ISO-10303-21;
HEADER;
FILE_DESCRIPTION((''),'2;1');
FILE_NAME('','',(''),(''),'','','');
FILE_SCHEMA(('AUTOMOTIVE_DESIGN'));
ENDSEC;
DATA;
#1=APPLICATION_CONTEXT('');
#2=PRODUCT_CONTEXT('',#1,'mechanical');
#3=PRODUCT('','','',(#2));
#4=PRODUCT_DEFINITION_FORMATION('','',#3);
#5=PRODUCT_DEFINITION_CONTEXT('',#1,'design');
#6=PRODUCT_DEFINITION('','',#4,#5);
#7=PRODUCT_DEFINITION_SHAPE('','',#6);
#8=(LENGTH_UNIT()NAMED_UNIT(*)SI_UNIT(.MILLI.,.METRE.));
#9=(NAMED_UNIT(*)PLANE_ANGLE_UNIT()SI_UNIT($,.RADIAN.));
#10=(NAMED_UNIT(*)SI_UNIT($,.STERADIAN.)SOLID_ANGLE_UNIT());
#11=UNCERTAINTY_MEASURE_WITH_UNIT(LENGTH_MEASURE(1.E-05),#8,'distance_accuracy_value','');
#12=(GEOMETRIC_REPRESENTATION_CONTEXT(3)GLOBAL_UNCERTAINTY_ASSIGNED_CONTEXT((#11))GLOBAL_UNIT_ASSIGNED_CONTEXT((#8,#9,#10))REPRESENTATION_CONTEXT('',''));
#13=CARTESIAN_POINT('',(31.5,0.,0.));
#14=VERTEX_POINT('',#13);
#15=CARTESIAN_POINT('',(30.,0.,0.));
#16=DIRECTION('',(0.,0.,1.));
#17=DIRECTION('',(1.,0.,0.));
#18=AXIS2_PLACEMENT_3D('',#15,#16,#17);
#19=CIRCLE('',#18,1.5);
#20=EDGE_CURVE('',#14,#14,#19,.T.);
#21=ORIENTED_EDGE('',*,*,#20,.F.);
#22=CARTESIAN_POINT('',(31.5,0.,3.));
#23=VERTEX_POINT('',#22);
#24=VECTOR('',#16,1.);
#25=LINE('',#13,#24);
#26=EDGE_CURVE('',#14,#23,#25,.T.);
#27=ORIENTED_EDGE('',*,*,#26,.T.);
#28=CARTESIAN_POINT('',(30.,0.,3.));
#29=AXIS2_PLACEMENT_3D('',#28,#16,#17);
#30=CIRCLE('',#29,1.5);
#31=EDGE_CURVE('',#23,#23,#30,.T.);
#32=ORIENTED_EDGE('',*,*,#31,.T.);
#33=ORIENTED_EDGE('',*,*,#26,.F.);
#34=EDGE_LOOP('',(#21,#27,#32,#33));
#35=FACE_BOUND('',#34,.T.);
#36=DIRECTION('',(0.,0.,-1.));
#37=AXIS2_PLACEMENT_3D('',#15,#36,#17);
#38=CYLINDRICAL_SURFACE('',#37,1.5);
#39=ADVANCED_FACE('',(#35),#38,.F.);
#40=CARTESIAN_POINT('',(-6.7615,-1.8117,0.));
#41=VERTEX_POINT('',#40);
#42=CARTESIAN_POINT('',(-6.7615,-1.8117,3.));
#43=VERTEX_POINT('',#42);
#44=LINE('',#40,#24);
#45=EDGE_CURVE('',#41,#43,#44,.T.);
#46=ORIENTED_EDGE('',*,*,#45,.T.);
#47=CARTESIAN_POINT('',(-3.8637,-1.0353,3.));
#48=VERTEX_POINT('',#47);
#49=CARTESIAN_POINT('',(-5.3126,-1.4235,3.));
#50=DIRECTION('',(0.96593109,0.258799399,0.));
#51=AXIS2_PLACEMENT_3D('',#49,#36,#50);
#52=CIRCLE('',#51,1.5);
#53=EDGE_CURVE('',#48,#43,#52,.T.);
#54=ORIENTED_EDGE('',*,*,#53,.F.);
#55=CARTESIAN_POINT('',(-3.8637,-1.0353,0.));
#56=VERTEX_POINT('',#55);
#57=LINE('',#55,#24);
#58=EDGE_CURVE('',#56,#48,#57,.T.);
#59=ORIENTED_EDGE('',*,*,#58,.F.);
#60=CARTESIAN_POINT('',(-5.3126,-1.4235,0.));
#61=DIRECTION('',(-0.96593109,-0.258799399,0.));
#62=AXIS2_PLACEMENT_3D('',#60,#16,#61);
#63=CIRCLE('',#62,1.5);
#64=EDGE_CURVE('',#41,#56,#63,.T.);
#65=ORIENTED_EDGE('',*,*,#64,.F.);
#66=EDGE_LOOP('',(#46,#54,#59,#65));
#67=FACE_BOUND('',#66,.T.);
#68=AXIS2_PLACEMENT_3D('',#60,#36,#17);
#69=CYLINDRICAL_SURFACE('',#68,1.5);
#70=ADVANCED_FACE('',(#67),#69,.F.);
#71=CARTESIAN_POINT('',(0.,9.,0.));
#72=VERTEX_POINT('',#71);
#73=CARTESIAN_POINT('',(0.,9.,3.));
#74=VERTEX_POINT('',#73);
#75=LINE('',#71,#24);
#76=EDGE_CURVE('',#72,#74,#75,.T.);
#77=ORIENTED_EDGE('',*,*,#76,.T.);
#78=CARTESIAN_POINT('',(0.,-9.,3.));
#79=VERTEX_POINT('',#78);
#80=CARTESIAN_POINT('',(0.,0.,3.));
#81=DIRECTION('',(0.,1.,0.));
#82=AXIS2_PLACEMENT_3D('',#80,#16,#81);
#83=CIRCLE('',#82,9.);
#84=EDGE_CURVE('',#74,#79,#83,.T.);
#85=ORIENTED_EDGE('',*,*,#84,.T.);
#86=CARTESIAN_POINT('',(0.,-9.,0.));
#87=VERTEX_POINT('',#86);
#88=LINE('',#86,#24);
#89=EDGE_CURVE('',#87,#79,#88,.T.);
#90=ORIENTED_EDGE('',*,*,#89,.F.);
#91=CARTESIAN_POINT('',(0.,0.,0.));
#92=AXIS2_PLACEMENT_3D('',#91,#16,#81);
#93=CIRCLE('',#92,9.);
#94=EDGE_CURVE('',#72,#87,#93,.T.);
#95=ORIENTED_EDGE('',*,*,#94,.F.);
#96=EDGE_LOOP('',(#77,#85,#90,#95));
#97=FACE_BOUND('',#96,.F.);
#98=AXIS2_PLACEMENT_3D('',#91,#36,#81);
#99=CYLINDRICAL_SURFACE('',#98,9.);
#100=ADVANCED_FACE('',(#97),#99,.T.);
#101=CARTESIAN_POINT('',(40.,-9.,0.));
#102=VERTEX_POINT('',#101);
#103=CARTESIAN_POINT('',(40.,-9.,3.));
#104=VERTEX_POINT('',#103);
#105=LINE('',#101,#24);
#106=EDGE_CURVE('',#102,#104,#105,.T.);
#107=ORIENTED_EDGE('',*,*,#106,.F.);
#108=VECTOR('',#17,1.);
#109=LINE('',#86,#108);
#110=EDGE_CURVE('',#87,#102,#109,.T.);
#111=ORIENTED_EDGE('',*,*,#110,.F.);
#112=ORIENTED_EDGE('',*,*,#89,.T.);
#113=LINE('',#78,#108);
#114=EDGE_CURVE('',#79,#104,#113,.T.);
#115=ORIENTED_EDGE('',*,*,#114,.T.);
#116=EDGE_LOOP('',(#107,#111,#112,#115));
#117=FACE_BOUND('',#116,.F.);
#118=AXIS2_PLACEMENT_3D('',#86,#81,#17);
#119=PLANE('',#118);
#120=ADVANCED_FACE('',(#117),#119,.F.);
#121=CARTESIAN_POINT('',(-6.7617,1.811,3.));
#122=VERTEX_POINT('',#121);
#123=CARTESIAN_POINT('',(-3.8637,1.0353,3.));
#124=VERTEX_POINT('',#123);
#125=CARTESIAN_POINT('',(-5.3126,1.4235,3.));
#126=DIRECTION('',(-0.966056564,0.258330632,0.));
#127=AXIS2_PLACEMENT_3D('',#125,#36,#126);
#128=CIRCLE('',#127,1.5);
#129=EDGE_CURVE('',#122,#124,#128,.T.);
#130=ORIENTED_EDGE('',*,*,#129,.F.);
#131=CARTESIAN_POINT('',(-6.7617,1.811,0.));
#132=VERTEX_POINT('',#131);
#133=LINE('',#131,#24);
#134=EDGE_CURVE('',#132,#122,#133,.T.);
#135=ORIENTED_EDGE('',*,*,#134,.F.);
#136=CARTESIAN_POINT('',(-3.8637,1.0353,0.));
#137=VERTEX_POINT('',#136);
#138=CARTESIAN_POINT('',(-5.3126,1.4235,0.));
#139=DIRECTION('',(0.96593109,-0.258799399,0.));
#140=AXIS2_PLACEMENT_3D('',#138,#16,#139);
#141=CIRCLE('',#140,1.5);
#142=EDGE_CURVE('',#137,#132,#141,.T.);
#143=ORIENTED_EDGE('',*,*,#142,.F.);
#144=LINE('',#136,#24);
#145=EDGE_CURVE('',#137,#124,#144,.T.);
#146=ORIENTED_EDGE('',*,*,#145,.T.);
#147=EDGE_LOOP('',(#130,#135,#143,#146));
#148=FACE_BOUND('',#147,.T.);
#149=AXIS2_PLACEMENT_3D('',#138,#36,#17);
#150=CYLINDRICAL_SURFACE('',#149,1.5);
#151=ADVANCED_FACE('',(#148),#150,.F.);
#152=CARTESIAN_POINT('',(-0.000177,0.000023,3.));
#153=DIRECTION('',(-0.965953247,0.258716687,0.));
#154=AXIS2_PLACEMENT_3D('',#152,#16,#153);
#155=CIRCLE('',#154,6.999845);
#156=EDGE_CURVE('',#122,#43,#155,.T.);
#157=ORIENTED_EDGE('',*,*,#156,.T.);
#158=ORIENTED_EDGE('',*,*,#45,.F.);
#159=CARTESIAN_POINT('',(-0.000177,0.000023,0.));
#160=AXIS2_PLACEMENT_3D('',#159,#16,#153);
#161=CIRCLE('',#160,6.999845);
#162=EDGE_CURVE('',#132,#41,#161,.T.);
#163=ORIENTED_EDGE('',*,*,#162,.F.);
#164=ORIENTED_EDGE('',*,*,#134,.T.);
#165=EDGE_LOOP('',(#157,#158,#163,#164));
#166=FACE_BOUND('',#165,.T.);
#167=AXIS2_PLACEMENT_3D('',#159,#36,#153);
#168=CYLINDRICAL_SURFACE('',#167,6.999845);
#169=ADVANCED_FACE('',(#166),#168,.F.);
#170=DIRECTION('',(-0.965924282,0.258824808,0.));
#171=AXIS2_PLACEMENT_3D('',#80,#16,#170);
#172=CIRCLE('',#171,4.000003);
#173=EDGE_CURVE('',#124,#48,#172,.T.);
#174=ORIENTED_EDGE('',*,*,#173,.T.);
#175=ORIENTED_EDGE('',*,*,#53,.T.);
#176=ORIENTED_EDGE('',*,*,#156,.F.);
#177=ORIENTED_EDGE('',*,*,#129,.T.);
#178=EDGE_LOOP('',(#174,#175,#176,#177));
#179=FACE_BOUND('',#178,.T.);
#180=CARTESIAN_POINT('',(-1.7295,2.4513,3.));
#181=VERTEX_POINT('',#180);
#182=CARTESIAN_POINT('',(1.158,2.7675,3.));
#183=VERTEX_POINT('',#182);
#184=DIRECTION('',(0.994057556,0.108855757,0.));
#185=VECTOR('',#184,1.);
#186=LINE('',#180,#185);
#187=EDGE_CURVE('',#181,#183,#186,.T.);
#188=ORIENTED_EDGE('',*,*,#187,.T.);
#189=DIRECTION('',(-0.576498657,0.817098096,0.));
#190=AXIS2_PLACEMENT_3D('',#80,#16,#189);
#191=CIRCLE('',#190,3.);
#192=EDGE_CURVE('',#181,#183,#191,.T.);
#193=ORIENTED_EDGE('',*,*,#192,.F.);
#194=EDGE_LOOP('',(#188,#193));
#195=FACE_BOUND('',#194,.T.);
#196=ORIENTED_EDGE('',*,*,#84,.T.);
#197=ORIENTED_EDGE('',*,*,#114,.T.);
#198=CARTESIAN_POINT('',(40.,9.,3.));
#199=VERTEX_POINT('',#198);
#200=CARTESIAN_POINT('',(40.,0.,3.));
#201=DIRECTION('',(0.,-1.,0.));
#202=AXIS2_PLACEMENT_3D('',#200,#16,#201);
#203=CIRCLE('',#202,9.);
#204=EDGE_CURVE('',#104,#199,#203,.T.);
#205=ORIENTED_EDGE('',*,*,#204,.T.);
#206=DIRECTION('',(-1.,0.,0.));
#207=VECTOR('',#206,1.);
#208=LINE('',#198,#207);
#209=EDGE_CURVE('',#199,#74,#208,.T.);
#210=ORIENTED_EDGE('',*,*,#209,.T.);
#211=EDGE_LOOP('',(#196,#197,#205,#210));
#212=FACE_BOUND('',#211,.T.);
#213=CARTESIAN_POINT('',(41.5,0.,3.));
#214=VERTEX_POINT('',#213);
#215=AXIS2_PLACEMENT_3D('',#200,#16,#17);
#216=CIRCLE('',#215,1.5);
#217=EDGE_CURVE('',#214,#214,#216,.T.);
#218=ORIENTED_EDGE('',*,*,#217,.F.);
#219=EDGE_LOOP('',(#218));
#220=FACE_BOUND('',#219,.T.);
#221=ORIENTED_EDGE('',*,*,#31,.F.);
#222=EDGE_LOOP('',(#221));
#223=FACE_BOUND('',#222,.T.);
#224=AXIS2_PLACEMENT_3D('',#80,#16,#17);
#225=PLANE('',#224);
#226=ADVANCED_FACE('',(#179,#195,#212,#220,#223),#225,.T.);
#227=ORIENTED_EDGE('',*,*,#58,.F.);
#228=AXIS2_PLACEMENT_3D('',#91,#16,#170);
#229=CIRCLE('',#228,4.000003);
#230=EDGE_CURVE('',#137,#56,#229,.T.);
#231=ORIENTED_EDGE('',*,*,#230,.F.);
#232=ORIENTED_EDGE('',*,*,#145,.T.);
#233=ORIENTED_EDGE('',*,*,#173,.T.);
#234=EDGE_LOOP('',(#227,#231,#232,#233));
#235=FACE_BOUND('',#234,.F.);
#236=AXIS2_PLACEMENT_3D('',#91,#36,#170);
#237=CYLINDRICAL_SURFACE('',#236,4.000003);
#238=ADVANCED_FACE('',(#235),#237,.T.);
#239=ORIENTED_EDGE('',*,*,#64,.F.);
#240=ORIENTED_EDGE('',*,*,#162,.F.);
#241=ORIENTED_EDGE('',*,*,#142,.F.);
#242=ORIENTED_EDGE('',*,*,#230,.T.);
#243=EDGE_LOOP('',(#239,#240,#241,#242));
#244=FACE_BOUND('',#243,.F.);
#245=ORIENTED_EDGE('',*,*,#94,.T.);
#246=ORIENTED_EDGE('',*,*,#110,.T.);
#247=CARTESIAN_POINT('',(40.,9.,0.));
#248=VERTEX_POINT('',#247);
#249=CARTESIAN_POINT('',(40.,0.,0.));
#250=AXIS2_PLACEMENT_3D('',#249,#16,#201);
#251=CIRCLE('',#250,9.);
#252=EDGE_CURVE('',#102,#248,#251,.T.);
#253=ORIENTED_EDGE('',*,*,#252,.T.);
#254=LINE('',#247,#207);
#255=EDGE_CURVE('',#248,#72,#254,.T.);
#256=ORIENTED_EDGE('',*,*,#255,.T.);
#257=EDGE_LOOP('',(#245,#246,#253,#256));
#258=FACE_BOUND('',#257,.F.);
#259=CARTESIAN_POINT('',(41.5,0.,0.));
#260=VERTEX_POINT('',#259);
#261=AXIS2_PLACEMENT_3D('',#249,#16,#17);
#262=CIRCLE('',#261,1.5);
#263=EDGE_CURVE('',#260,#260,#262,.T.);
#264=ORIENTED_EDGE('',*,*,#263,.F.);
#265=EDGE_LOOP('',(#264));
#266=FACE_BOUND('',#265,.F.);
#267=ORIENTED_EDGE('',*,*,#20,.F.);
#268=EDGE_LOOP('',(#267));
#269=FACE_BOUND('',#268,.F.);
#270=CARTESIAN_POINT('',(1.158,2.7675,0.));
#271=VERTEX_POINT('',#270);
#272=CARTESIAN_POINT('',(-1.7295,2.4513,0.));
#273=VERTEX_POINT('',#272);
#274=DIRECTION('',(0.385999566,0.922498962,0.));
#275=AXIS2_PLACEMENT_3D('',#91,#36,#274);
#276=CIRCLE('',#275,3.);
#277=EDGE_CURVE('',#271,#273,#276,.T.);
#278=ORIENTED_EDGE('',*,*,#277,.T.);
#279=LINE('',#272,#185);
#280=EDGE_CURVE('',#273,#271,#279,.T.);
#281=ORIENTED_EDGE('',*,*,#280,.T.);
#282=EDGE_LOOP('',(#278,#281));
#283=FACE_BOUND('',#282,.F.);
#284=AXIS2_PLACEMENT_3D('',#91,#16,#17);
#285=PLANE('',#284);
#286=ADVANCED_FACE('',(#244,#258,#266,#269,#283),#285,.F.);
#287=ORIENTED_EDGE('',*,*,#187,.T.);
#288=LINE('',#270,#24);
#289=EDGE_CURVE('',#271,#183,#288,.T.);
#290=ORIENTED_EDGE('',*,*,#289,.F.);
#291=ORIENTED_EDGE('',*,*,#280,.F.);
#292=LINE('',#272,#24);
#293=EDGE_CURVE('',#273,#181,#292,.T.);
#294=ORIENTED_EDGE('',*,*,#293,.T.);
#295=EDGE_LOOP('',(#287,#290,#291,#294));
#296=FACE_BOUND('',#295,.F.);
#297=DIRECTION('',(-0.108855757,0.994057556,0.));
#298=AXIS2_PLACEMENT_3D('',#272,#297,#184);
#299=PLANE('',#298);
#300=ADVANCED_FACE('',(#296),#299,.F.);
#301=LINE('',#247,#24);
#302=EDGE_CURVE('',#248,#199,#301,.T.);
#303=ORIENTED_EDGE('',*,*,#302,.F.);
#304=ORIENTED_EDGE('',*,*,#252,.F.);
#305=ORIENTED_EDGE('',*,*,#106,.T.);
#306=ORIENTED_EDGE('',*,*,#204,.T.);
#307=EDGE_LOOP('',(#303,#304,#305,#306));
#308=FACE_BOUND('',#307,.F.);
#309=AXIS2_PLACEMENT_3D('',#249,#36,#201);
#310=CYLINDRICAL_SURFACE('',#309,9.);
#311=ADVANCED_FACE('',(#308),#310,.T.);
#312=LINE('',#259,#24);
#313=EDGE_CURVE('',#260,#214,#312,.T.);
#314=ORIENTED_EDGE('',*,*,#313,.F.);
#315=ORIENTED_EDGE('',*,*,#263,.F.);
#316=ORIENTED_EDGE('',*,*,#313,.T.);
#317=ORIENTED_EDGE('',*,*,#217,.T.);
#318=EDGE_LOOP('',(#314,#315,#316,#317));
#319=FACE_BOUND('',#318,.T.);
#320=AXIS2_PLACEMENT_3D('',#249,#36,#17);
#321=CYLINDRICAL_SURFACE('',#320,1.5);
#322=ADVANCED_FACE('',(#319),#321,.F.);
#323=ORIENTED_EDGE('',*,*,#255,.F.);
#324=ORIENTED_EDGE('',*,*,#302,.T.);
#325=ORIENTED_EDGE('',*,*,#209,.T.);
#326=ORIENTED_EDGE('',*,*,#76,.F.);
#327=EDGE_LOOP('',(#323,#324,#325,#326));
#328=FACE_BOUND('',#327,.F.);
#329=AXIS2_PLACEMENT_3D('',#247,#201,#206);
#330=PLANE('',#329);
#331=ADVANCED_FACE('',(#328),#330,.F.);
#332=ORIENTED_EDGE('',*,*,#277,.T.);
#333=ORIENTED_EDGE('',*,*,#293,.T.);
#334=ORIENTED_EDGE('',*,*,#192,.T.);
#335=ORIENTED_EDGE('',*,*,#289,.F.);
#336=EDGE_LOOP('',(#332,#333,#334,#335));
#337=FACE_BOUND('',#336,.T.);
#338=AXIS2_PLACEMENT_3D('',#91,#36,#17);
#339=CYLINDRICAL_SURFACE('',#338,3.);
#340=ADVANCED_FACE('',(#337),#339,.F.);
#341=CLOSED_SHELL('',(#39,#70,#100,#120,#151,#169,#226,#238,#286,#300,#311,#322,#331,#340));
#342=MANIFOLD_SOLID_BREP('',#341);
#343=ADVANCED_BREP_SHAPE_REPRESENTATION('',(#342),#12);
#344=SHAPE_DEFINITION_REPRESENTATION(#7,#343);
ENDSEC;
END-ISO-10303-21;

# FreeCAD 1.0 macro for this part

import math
import FreeCAD as App
import Part
import Sketcher

V = App.Vector
Q = App.Units.Quantity

doc = App.newDocument("Part")
body = doc.addObject("PartDesign::Body", "Body")

# Sketch on XY plane
sketch1 = body.newObject("Sketcher::SketchObject", "Sketch")
sketch1.AttachmentSupport = (doc.getObject("XY_Plane"), [""])
sketch1.MapMode = "FlatFace"
sketch1.addGeometry(Part.ArcOfCircle(Part.Circle(V(0, 0, 0), V(0, 0, 1), 9), math.radians(90), math.radians(270)), False)
sketch1.addGeometry(Part.LineSegment(V(0, -9, 0), V(40, -9, 0)), False)
sketch1.addGeometry(Part.ArcOfCircle(Part.Circle(V(40, 0, 0), V(0, 0, 1), 9), math.radians(-90), math.radians(90)), False)
sketch1.addGeometry(Part.LineSegment(V(40, 9, 0), V(0, 9, 0)), False)
sketch1.addGeometry(Part.LineSegment(V(-1.7295, 2.4513, 0), V(1.158, 2.7675, 0)), False)
sketch1.addGeometry(Part.ArcOfCircle(Part.Circle(V(0, 0, 0), V(0, 0, 1), 3), math.radians(125.204652), math.radians(427.294191)), False)
sketch1.addGeometry(Part.ArcOfCircle(Part.Circle(V(-5.3126, -1.4235, 0), V(0, 0, 1), 1.5), math.radians(-165.001165), math.radians(14.998835)), False)
sketch1.addGeometry(Part.ArcOfCircle(Part.Circle(V(0, 0, 0), V(0, 0, 1), 7.000022), math.radians(165.006262), math.radians(194.999696)), False)
sketch1.addGeometry(Part.ArcOfCircle(Part.Circle(V(-5.3126, 1.4235, 0), V(0, 0, 1), 1.5), math.radians(-14.998835), math.radians(165.028969)), False)
sketch1.addGeometry(Part.ArcOfCircle(Part.Circle(V(0, 0, 0), V(0, 0, 1), 4.000003), math.radians(164.999658), math.radians(195.000342)), False)
sketch1.addGeometry(Part.Circle(V(40, 0, 0), V(0, 0, 1), 1.5), False)
sketch1.addGeometry(Part.Circle(V(30, 0, 0), V(0, 0, 1), 1.5), False)
sketch1.addConstraint(Sketcher.Constraint("Tangent", 0, 2, 1, 1))
sketch1.addConstraint(Sketcher.Constraint("Tangent", 1, 2, 2, 1))
sketch1.addConstraint(Sketcher.Constraint("Tangent", 2, 2, 3, 1))
sketch1.addConstraint(Sketcher.Constraint("Tangent", 3, 2, 0, 1))
sketch1.addConstraint(Sketcher.Constraint("Coincident", 4, 1, 5, 1))
sketch1.addConstraint(Sketcher.Constraint("Coincident", 5, 2, 4, 2))
sketch1.addConstraint(Sketcher.Constraint("Tangent", 6, 1, 7, 2))
sketch1.addConstraint(Sketcher.Constraint("Tangent", 7, 1, 8, 2))
sketch1.addConstraint(Sketcher.Constraint("Tangent", 8, 1, 9, 1))
sketch1.addConstraint(Sketcher.Constraint("Tangent", 9, 2, 6, 2))
sketch1.addConstraint(Sketcher.Constraint("Horizontal", 1))
sketch1.addConstraint(Sketcher.Constraint("Horizontal", 3))
sketch1.addConstraint(Sketcher.Constraint("Coincident", 0, 3, -1, 1))
sketch1.addConstraint(Sketcher.Constraint("Coincident", 5, 3, -1, 1))
sketch1.addConstraint(Sketcher.Constraint("Coincident", 7, 3, -1, 1))
sketch1.addConstraint(Sketcher.Constraint("Coincident", 9, 3, -1, 1))
sketch1.addConstraint(Sketcher.Constraint("Coincident", 10, 3, 2, 3))
sketch1.addConstraint(Sketcher.Constraint("Equal", 8, 10))
sketch1.addConstraint(Sketcher.Constraint("Equal", 10, 11))
sketch1.addConstraint(Sketcher.Constraint("PointOnObject", 11, 3, -1))
sketch1.addConstraint(Sketcher.Constraint("Vertical", 6, 3, 8, 3))
sketch1.addConstraint(Sketcher.Constraint("Diameter", 10, Q("3 mm")))
sketch1.addConstraint(Sketcher.Constraint("Radius", 0, Q("9 mm")))
sketch1.addConstraint(Sketcher.Constraint("Radius", 5, Q("3 mm")))
sketch1.addConstraint(Sketcher.Constraint("DistanceX", 1, 1, 1, 2, Q("40 mm")))
sketch1.addConstraint(Sketcher.Constraint("Radius", 7, Q("7 mm")))
sketch1.addConstraint(Sketcher.Constraint("DistanceX", 11, 3, 2, 3, Q("10 mm")))
sketch1.addConstraint(Sketcher.Constraint("Angle", 4, Q("6.2494 deg")))
sketch1.addConstraint(Sketcher.Constraint("DistanceX", -1, 1, 5, 2, Q("1.158 mm")))
sketch1.addConstraint(Sketcher.Constraint("DistanceY", -1, 1, 7, 1, Q("1.811 mm")))
pad1 = body.newObject("PartDesign::Pad", "Pad")
pad1.Profile = sketch1
pad1.Length = 3

doc.recompute()
